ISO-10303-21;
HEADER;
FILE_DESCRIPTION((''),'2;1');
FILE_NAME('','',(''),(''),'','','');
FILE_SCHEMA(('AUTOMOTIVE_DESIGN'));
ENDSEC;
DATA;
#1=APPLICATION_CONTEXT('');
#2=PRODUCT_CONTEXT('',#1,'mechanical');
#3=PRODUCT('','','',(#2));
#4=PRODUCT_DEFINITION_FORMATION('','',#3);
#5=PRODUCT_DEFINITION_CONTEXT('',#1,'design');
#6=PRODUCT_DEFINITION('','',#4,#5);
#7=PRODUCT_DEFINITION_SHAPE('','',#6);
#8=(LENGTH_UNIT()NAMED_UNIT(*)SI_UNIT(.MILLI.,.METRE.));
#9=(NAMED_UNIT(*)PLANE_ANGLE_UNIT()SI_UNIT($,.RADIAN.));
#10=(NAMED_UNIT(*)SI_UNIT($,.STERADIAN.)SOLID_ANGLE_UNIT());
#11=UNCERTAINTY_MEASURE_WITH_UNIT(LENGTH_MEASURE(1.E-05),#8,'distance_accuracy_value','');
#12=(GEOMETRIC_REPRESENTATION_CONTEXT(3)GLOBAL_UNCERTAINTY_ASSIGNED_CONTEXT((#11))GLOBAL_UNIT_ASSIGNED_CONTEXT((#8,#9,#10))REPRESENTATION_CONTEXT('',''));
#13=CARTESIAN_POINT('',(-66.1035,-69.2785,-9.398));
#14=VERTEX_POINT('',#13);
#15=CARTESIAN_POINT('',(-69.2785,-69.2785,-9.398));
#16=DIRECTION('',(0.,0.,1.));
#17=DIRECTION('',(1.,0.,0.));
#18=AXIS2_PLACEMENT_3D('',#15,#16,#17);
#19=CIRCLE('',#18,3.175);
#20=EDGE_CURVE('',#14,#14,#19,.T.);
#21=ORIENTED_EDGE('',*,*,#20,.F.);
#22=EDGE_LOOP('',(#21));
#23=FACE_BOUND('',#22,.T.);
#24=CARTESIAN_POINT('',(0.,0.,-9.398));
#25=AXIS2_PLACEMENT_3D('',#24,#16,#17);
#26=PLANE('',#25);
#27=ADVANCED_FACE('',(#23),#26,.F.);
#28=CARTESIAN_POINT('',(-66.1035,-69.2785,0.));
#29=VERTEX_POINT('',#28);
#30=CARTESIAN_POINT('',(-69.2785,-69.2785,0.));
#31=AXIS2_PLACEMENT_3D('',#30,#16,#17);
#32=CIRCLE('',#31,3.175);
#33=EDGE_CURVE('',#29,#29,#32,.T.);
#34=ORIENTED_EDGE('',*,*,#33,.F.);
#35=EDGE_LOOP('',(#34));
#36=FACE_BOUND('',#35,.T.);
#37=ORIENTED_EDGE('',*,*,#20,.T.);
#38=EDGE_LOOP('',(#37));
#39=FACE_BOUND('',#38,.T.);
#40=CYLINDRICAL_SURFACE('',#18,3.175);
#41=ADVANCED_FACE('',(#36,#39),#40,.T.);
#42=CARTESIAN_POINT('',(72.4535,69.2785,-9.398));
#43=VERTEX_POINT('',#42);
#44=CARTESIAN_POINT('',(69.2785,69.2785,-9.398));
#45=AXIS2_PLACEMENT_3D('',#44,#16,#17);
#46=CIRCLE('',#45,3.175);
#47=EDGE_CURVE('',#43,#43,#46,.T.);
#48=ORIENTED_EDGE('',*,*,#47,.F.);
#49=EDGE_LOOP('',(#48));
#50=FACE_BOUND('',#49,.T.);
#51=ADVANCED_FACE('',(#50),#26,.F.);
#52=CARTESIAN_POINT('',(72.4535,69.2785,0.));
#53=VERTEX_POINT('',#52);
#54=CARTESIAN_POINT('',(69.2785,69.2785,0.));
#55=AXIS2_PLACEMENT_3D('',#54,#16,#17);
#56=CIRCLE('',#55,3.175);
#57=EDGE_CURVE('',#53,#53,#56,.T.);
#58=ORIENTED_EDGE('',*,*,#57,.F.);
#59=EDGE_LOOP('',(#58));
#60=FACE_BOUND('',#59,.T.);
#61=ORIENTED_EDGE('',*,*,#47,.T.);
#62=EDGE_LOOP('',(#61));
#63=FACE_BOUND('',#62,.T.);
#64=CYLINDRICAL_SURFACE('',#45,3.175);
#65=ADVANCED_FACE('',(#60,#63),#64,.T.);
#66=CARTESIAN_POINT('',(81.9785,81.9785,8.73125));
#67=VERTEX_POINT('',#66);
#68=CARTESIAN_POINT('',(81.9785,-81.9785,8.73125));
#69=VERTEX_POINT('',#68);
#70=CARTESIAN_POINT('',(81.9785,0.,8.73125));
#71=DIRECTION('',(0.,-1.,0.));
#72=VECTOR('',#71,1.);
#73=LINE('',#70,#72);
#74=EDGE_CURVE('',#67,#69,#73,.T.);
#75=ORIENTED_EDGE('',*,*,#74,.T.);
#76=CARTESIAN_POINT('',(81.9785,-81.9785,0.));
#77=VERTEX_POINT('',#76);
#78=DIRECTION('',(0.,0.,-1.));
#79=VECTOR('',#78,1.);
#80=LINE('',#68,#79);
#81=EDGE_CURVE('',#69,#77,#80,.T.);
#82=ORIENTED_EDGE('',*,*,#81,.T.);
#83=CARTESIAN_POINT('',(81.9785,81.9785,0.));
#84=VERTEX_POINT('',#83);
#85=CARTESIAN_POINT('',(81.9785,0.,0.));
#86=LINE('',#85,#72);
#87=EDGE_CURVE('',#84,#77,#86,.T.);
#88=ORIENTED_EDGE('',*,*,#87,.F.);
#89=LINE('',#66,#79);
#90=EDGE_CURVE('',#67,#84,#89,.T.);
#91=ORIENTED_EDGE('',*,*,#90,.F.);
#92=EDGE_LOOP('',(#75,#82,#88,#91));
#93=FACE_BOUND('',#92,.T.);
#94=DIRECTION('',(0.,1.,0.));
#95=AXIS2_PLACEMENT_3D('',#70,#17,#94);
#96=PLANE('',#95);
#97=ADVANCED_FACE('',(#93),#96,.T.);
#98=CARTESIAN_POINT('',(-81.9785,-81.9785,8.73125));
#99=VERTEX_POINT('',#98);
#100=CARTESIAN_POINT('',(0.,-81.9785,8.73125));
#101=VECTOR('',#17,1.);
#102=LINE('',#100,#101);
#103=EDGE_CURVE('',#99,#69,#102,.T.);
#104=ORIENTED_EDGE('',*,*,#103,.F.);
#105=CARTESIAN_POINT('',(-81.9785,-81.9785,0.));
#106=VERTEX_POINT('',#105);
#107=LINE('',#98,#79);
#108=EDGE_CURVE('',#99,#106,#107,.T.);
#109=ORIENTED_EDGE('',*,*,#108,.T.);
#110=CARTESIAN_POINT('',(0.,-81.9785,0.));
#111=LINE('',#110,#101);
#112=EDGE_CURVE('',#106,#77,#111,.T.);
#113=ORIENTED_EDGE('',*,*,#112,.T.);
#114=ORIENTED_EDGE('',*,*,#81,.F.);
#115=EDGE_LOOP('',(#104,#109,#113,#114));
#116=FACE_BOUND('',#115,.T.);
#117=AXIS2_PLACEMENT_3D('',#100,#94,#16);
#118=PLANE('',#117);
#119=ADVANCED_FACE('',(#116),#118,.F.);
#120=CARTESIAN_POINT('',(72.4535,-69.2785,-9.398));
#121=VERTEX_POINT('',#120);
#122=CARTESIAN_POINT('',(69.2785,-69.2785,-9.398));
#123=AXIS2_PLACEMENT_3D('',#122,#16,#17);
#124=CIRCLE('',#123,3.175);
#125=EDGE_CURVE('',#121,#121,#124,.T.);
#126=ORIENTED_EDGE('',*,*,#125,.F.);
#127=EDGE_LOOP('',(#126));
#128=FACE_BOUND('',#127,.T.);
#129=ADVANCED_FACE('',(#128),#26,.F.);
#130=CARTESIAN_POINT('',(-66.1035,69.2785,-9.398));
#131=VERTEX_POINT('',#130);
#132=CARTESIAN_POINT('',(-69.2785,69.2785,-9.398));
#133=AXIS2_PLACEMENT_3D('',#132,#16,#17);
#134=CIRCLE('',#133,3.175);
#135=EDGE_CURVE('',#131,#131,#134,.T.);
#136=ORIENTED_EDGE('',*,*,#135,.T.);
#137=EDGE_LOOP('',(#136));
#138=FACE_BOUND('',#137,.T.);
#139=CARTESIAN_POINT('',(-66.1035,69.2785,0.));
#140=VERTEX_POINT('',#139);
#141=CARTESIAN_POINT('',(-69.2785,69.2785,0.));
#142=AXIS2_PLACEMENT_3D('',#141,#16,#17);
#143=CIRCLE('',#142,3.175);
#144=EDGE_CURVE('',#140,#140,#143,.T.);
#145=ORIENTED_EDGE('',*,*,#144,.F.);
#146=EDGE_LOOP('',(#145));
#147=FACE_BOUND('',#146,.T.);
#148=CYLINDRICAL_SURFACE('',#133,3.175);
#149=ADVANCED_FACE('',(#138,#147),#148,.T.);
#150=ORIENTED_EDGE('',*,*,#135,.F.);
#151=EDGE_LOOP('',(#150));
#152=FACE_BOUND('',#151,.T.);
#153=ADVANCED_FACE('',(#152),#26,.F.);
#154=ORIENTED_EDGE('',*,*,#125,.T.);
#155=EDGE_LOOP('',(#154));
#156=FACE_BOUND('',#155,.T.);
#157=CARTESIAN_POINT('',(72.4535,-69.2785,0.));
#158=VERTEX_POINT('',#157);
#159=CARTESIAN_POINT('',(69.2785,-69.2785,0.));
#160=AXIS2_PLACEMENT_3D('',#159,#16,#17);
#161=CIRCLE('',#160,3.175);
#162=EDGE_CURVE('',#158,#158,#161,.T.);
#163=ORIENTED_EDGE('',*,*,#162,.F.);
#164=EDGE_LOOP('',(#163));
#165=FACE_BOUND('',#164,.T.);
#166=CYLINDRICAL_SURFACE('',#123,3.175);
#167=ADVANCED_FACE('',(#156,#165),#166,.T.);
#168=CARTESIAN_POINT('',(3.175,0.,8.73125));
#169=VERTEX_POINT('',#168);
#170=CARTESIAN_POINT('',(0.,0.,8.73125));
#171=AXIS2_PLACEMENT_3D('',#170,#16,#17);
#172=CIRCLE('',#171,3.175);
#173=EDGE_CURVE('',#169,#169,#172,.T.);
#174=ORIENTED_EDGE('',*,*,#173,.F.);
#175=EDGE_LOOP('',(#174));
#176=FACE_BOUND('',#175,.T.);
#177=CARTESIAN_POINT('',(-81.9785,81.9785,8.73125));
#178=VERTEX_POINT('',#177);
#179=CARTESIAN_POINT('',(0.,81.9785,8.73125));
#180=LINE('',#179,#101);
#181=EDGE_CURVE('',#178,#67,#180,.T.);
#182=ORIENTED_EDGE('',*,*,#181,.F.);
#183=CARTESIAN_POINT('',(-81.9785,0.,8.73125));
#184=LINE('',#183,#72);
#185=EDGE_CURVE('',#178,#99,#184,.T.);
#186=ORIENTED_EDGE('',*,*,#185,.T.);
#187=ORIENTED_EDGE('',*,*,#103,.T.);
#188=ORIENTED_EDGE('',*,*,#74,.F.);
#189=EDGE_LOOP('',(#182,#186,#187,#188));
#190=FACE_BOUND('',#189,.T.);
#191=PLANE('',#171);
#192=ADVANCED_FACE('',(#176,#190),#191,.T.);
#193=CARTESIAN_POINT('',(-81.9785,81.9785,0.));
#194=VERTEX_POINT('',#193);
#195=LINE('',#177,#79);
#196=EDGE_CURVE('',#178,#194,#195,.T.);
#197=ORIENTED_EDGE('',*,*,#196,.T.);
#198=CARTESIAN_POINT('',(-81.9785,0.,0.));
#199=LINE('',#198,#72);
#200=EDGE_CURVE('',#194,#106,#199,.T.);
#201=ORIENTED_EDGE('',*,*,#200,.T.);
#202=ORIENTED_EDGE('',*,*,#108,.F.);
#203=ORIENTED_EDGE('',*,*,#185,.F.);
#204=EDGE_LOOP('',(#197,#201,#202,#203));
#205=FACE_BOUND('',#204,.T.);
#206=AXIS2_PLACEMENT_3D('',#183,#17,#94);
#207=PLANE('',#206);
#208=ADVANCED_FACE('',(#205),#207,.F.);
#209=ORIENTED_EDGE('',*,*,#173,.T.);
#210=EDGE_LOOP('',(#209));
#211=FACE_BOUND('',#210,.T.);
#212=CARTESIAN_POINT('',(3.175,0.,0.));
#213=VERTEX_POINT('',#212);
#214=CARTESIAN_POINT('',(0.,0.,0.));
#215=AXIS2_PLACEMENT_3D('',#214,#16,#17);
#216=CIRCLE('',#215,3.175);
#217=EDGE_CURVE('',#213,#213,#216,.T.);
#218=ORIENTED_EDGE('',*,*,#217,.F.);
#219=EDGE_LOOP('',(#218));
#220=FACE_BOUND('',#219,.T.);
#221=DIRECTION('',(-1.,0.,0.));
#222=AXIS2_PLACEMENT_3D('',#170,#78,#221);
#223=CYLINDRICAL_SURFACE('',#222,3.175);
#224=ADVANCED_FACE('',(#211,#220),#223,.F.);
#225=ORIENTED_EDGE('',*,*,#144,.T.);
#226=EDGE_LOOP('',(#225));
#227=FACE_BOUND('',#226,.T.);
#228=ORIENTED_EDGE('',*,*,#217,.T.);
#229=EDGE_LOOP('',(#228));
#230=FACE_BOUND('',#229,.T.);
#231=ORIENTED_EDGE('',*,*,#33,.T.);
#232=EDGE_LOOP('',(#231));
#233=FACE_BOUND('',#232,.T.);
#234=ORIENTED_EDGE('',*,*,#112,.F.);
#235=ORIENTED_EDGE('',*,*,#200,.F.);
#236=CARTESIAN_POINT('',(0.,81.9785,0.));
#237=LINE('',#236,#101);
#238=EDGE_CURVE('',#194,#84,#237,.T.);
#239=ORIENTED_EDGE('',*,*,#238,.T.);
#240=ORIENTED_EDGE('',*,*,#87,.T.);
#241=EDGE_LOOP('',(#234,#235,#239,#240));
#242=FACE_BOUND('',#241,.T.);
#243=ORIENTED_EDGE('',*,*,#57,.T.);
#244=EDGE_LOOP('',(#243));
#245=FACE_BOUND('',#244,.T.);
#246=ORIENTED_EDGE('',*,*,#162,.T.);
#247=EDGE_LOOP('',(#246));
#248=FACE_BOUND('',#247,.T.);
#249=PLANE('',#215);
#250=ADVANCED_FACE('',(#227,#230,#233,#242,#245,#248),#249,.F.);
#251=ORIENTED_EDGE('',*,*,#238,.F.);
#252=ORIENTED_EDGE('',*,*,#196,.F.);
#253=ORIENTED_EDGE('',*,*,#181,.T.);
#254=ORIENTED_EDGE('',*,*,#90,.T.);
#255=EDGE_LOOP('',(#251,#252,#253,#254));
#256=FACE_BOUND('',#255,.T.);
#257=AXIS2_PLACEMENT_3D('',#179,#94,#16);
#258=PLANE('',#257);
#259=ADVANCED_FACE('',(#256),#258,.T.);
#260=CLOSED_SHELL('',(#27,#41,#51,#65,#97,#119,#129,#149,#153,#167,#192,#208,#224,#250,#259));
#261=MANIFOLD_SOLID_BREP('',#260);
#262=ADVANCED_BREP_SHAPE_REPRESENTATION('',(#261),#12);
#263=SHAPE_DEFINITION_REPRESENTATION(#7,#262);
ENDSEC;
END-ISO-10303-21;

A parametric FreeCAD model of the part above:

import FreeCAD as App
import Part
import Sketcher
from FreeCAD import Vector
Q = App.Units.Quantity

doc = App.newDocument("Part")
body = doc.addObject("PartDesign::Body", "Body")

# Sketch on XY plane
sketch1 = doc.addObject("Sketcher::SketchObject", "Sketch")
body.addObject(sketch1)
sketch1.AttachmentSupport = (doc.XY_Plane, [""])
sketch1.MapMode = "FlatFace"
sketch1.addGeometry(Part.LineSegment(Vector(-81.9785, 81.9785, 0), Vector(-81.9785, -81.9785, 0)), False)
sketch1.addGeometry(Part.LineSegment(Vector(-81.9785, -81.9785, 0), Vector(81.9785, -81.9785, 0)), False)
sketch1.addGeometry(Part.LineSegment(Vector(81.9785, -81.9785, 0), Vector(81.9785, 81.9785, 0)), False)
sketch1.addGeometry(Part.LineSegment(Vector(81.9785, 81.9785, 0), Vector(-81.9785, 81.9785, 0)), False)
sketch1.addGeometry(Part.Circle(Vector(0, 0, 0), Vector(0, 0, 1), 3.175), False)
sketch1.addConstraint(Sketcher.Constraint("Coincident", 0, 2, 1, 1))
sketch1.addConstraint(Sketcher.Constraint("Coincident", 1, 2, 2, 1))
sketch1.addConstraint(Sketcher.Constraint("Coincident", 2, 2, 3, 1))
sketch1.addConstraint(Sketcher.Constraint("Coincident", 3, 2, 0, 1))
sketch1.addConstraint(Sketcher.Constraint("Vertical", 0))
sketch1.addConstraint(Sketcher.Constraint("Horizontal", 1))
sketch1.addConstraint(Sketcher.Constraint("Vertical", 2))
sketch1.addConstraint(Sketcher.Constraint("Horizontal", 3))
sketch1.addConstraint(Sketcher.Constraint("Coincident", 4, 3, -1, 1))
sketch1.addConstraint(Sketcher.Constraint("Symmetric", 0, 2, 2, 2, -1, 1))
sketch1.addConstraint(Sketcher.Constraint("Equal", 3, 0))
sketch1.addConstraint(Sketcher.Constraint("Diameter", 4, Q("0.25 in")))
sketch1.addConstraint(Sketcher.Constraint("DistanceX", 1, 1, 1, 2, Q("6.455 in")))
pad1 = doc.addObject("PartDesign::Pad", "Pad")
body.addObject(pad1)
pad1.Profile = sketch1
pad1.Length = Q("0.34375 in")

# Sketch on XY plane
sketch2 = doc.addObject("Sketcher::SketchObject", "Sketch001")
body.addObject(sketch2)
sketch2.AttachmentSupport = (doc.XY_Plane, [""])
sketch2.MapMode = "FlatFace"
sketch2.addGeometry(Part.Circle(Vector(69.2785, 69.2785, 0), Vector(0, 0, 1), 3.175), False)
sketch2.addGeometry(Part.Circle(Vector(-69.2785, 69.2785, 0), Vector(0, 0, 1), 3.175), False)
sketch2.addGeometry(Part.Circle(Vector(-69.2785, -69.2785, 0), Vector(0, 0, 1), 3.175), False)
sketch2.addGeometry(Part.Circle(Vector(69.2785, -69.2785, 0), Vector(0, 0, 1), 3.175), False)
sketch2.addConstraint(Sketcher.Constraint("Equal", 0, 1))
sketch2.addConstraint(Sketcher.Constraint("Equal", 1, 2))
sketch2.addConstraint(Sketcher.Constraint("Equal", 2, 3))
sketch2.addConstraint(Sketcher.Constraint("Symmetric", 0, 3, 2, 3, -1, 1))
sketch2.addConstraint(Sketcher.Constraint("Symmetric", 1, 3, 3, 3, -1, 1))
sketch2.addConstraint(Sketcher.Constraint("Symmetric", 0, 3, 1, 3, -2))
sketch2.addConstraint(Sketcher.Constraint("Diameter", 0, Q("0.25 in")))
sketch2.addConstraint(Sketcher.Constraint("DistanceX", 1, 3, 0, 3, Q("5.455 in")))
sketch2.addConstraint(Sketcher.Constraint("DistanceY", 2, 3, 1, 3, Q("5.455 in")))
pad2 = doc.addObject("PartDesign::Pad", "Pad001")
body.addObject(pad2)
pad2.Profile = sketch2
pad2.Length = Q("0.37 in")
pad2.Reversed = True

doc.recompute()
